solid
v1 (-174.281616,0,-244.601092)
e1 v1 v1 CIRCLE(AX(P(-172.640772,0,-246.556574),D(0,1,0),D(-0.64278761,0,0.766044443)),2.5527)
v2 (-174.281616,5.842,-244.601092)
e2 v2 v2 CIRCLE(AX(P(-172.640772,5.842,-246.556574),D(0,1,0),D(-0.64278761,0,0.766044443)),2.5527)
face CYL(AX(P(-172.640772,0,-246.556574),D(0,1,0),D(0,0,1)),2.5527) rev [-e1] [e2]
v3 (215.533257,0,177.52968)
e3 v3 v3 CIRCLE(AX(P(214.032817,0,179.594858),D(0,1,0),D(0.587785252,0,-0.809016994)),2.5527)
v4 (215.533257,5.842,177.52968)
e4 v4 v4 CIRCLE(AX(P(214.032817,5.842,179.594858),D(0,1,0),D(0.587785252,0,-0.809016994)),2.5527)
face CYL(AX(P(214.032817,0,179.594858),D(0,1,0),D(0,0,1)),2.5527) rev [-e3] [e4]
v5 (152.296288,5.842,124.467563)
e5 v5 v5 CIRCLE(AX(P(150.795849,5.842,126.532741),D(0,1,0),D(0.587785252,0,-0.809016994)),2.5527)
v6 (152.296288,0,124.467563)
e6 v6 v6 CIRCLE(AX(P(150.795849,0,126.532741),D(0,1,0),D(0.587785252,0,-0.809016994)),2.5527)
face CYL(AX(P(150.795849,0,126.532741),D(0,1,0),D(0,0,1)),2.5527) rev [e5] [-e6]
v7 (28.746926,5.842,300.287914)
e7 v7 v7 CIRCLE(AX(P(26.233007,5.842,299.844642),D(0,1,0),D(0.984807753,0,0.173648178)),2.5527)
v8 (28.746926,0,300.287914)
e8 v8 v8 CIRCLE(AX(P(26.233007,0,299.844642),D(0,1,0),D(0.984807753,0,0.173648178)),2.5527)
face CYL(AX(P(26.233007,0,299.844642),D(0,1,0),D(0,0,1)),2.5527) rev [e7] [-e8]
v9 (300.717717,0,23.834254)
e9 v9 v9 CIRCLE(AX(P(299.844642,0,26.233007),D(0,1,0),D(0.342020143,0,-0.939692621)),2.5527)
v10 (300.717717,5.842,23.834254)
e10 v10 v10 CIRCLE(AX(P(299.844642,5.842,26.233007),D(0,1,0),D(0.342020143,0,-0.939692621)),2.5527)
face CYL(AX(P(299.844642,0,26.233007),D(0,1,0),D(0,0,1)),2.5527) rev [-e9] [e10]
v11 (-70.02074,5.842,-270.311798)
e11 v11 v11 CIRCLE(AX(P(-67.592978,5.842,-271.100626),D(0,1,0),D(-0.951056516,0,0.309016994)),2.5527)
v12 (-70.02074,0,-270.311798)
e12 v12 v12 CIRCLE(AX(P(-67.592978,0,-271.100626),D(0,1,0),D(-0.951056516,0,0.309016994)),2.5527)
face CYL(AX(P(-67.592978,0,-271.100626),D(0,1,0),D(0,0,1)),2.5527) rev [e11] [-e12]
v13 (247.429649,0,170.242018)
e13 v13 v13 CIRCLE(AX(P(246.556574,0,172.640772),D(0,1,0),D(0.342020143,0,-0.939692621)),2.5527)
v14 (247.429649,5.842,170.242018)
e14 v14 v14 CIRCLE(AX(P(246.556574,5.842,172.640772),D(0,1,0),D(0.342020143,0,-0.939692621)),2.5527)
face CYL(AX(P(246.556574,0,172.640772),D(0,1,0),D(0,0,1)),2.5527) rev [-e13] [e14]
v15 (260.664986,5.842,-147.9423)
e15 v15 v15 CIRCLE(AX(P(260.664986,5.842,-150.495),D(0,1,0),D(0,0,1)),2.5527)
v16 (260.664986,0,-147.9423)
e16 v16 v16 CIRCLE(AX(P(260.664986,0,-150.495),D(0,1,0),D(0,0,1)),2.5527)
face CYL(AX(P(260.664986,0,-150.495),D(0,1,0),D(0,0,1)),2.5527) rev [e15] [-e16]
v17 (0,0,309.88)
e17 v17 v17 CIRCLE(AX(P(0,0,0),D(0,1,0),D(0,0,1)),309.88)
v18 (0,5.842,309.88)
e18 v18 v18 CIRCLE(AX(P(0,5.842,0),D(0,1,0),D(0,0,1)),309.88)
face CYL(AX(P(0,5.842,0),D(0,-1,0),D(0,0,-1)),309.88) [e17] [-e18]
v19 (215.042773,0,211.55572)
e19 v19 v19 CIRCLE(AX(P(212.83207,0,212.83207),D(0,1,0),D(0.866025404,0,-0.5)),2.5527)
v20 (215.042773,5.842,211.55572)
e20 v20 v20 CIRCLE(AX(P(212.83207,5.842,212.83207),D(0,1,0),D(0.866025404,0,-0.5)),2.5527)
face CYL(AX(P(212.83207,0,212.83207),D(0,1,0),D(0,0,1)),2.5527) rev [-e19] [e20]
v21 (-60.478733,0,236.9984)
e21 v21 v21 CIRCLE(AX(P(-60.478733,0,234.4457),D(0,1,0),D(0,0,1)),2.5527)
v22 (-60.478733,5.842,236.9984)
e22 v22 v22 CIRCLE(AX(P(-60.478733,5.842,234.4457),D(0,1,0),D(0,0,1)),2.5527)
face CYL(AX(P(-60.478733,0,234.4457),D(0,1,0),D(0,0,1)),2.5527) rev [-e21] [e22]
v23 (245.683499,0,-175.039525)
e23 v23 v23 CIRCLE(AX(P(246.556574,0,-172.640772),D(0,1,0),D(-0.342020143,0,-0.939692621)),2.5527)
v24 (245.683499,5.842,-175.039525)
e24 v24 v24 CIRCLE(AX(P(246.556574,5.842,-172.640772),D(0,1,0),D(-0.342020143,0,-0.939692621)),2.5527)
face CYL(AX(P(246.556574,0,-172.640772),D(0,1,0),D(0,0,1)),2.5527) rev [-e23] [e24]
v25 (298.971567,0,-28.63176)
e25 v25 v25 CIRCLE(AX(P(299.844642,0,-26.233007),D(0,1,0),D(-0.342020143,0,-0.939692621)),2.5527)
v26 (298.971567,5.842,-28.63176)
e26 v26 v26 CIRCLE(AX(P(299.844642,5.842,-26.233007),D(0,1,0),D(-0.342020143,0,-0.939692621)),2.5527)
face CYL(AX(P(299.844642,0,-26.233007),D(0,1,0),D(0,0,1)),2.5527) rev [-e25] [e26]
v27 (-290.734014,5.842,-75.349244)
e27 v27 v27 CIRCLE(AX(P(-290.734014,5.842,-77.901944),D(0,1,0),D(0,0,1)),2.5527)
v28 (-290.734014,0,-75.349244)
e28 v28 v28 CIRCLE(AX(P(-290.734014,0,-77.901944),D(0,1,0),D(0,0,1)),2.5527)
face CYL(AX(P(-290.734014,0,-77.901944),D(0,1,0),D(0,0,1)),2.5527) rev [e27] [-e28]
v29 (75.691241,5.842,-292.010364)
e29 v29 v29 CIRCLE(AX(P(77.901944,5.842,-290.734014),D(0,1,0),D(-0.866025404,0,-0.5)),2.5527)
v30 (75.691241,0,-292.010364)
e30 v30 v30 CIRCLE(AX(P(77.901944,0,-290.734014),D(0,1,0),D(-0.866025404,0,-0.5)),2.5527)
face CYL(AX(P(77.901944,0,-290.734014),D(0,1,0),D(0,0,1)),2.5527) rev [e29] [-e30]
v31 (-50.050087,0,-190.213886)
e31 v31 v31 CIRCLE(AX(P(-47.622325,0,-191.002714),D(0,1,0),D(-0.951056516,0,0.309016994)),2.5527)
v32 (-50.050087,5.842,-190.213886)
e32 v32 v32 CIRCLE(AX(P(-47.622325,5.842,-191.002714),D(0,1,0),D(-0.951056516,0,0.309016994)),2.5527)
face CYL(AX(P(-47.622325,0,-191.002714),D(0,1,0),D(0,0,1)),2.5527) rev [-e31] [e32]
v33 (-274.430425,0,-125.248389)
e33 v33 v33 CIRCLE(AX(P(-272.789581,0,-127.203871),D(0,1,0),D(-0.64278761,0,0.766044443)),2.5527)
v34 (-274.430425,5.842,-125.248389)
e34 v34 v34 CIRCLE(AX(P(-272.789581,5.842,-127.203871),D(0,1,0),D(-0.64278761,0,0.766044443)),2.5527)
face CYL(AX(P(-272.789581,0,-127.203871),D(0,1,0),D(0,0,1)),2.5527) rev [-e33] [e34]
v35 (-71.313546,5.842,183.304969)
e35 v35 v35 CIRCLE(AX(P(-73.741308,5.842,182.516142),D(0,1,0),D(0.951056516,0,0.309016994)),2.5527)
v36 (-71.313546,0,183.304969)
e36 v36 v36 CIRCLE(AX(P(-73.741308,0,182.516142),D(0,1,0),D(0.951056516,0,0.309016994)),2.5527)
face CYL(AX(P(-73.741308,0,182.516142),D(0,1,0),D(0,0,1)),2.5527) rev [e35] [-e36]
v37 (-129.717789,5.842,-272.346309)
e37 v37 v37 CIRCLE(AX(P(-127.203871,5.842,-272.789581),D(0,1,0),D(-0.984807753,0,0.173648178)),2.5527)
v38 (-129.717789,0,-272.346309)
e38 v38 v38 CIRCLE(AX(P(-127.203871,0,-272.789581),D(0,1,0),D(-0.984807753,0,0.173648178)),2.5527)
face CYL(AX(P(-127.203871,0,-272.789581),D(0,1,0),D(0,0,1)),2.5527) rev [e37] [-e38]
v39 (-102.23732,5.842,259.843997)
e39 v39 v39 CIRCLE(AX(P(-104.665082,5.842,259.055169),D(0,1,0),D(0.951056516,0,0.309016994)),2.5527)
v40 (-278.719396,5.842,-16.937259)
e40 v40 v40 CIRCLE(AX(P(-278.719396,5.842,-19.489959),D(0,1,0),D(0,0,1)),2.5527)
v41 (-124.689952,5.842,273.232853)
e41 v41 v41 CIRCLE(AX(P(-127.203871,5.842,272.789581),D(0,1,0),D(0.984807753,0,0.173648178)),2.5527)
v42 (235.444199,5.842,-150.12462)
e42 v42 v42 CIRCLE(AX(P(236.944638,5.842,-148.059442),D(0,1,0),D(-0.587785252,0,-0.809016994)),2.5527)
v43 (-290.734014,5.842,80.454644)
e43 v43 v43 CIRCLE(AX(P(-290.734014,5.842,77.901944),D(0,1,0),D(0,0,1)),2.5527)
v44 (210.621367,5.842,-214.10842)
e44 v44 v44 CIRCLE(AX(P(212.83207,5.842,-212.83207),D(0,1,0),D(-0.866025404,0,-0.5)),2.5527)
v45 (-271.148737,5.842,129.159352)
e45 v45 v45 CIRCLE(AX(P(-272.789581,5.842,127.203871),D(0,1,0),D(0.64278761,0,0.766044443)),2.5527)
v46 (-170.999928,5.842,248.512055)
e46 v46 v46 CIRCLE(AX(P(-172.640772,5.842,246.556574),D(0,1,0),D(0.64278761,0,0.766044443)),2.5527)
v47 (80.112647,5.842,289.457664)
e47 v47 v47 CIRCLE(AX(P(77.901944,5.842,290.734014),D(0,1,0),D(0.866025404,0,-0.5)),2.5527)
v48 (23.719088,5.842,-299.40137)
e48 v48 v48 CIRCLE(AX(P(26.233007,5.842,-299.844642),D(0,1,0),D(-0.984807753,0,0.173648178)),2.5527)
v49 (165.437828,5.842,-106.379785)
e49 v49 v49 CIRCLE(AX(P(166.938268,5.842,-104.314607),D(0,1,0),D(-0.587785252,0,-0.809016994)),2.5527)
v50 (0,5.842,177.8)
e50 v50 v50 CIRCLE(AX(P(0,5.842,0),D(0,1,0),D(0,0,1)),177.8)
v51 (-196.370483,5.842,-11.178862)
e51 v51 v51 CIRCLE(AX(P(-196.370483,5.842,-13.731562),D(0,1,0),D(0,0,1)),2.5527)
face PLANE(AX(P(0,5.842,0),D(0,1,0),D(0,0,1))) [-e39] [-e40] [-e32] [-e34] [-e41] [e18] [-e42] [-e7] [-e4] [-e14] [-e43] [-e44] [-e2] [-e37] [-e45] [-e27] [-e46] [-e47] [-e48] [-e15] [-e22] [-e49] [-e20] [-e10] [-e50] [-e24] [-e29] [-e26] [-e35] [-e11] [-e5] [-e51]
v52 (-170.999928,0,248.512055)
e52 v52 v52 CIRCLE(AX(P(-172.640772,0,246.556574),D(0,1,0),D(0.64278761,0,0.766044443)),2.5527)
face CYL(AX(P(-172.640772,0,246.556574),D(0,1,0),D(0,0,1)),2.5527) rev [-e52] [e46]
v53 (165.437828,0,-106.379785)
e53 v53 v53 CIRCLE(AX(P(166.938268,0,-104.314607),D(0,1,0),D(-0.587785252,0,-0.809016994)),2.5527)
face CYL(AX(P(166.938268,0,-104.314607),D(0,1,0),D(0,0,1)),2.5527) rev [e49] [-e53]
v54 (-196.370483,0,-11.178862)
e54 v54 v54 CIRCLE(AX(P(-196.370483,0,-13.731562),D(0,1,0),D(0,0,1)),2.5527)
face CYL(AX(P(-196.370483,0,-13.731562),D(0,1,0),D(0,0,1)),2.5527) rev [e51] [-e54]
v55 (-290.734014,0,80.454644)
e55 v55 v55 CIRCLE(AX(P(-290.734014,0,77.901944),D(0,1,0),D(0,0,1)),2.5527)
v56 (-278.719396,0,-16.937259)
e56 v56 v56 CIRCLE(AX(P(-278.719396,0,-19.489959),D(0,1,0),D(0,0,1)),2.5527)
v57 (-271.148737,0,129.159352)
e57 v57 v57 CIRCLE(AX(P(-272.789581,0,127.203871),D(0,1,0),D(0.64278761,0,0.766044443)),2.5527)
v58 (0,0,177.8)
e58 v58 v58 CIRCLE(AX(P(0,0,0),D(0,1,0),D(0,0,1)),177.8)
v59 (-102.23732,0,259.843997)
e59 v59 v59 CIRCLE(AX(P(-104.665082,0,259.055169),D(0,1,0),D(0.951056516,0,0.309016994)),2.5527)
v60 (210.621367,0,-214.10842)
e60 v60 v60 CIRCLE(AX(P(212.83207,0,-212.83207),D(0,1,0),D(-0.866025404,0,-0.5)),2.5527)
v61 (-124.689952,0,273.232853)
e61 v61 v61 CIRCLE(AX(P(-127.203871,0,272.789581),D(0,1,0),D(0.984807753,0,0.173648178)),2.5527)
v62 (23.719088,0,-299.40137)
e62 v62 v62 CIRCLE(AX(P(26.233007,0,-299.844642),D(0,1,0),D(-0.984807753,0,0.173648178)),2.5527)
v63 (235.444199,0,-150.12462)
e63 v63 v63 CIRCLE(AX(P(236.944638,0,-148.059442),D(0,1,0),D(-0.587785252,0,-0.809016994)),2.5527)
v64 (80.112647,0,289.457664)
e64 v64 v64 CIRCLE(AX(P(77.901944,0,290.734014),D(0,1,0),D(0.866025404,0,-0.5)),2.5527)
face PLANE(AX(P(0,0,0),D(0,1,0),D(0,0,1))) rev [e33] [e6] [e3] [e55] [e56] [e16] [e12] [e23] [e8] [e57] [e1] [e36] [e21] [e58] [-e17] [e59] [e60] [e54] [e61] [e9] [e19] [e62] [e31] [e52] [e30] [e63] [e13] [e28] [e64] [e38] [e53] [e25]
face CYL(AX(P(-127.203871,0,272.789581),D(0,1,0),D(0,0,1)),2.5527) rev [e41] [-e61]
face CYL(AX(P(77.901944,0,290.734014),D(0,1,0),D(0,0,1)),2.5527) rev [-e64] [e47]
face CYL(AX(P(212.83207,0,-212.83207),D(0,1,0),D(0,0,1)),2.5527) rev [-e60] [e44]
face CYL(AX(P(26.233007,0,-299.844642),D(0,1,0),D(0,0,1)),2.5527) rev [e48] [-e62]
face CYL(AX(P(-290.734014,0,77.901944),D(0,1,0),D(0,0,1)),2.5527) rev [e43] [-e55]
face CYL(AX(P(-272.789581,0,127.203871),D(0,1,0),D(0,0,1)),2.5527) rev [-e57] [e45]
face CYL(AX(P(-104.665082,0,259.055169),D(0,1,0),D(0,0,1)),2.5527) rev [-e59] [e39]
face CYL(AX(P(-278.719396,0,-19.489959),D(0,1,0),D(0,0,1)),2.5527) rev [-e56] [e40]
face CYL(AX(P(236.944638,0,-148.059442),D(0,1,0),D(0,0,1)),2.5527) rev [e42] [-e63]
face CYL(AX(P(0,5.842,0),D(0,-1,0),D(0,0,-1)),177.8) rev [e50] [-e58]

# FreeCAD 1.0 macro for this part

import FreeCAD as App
import Part
import Sketcher
from FreeCAD import Vector
Q = App.Units.Quantity

doc = App.newDocument("Part")
body = doc.addObject("PartDesign::Body", "Body")

# Sketch on XZ plane
sketch1 = body.newObject("Sketcher::SketchObject", "Sketch")
sketch1.AttachmentSupport = (doc.getObject("XZ_Plane"), [""])
sketch1.MapMode = "FlatFace"
sketch1.addGeometry(Part.Circle(Vector(0, 0, 0), Vector(0, 0, 1), 310), False)
sketch1.addGeometry(Part.Circle(Vector(0, 0, 0), Vector(0, 0, 1), 178), False)
sketch1.addConstraint(Sketcher.Constraint("Coincident", 0, 3, -1, 1))
sketch1.addConstraint(Sketcher.Constraint("Coincident", 1, 3, -1, 1))
sketch1.addConstraint(Sketcher.Constraint("Diameter", 1, Q("14 in")))
sketch1.addConstraint(Sketcher.Constraint("Diameter", 0, Q("24.4 in")))
pad1 = body.newObject("PartDesign::Pad", "Pad")
pad1.Profile = sketch1
pad1.Length = Q("0.23 in")
pad1.Reversed = True

# Sketch on XZ plane
sketch2 = body.newObject("Sketcher::SketchObject", "Sketch001")
sketch2.AttachmentSupport = (doc.getObject("XZ_Plane"), [""])
sketch2.MapMode = "FlatFace"
sketch2.AttachmentOffset = App.Placement(Vector(0, 0, -0.23 * 25.4), App.Rotation())
sketch2.addGeometry(Part.Circle(Vector(-290.7, 77.9, 0), Vector(0, 0, 1), 2.6), False)
sketch2.addGeometry(Part.Circle(Vector(-290.7, -77.9, 0), Vector(0, 0, 1), 2.6), False)
sketch2.addConstraint(Sketcher.Constraint("Equal", 0, 1))
sketch2.addConstraint(Sketcher.Constraint("Symmetric", 0, 3, 1, 3, -1))
sketch2.addConstraint(Sketcher.Constraint("Diameter", 0, Q("0.201 in")))
sketch2.addConstraint(Sketcher.Constraint("DistanceY", 1, 3, 0, 3, Q("155.803889 mm")))
sketch2.addConstraint(Sketcher.Constraint("DistanceX", 0, 3, -1, 1, Q("290.734014 mm")))
pocket1 = body.newObject("PartDesign::Pocket", "Pocket")
pocket1.Profile = sketch2
pocket1.Type = "ThroughAll"
pocket1.Reversed = True
doc.recompute()

polarpattern = body.newObject("PartDesign::PolarPattern", "PolarPattern")
polarpattern.Originals = [pocket1]
polarpattern.Axis = (doc.getObject("Y_Axis"), [""])
polarpattern.Angle = 360
polarpattern.Occurrences = 9
body.Tip = polarpattern

# Sketch on XZ plane
sketch3 = body.newObject("Sketcher::SketchObject", "Sketch002")
sketch3.AttachmentSupport = (doc.getObject("XZ_Plane"), [""])
sketch3.MapMode = "FlatFace"
sketch3.AttachmentOffset = App.Placement(Vector(0, 0, -0.23 * 25.4), App.Rotation())
sketch3.addGeometry(Part.Circle(Vector(-196.4, -13.7, 0), Vector(0, 0, 1), 2.6), False)
sketch3.addGeometry(Part.Circle(Vector(-278.7, -19.5, 0), Vector(0, 0, 1), 2.6), False)
sketch3.addConstraint(Sketcher.Constraint("Equal", 0, 1))
sketch3.addConstraint(Sketcher.Constraint("Diameter", 0, Q("0.201 in")))
sketch3.addConstraint(Sketcher.Constraint("DistanceY", 0, 3, -1, 1, Q("13.731562 mm")))
sketch3.addConstraint(Sketcher.Constraint("DistanceY", 1, 3, -1, 1, Q("19.489959 mm")))
sketch3.addConstraint(Sketcher.Constraint("DistanceX", 0, 3, -1, 1, Q("196.370483 mm")))
sketch3.addConstraint(Sketcher.Constraint("DistanceX", 1, 3, -1, 1, Q("278.719396 mm")))
pocket2 = body.newObject("PartDesign::Pocket", "Pocket001")
pocket2.Profile = sketch3
pocket2.Type = "ThroughAll"
pocket2.Reversed = True
doc.recompute()

polarpattern2 = body.newObject("PartDesign::PolarPattern", "PolarPattern001")
polarpattern2.Originals = [pocket2]
polarpattern2.Axis = (doc.getObject("Y_Axis"), [""])
polarpattern2.Angle = 360
polarpattern2.Occurrences = 5
body.Tip = polarpattern2

# Sketch on XZ plane
sketch4 = body.newObject("Sketcher::SketchObject", "Sketch003")
sketch4.AttachmentSupport = (doc.getObject("XZ_Plane"), [""])
sketch4.MapMode = "FlatFace"
sketch4.AttachmentOffset = App.Placement(Vector(0, 0, -0.23 * 25.4), App.Rotation())
sketch4.addGeometry(Part.Circle(Vector(260.7, -150.5, 0), Vector(0, 0, 1), 2.6), False)
sketch4.addConstraint(Sketcher.Constraint("Diameter", 0, Q("0.201 in")))
sketch4.addConstraint(Sketcher.Constraint("DistanceY", 0, 3, -1, 1, Q("5.925 in")))
sketch4.addConstraint(Sketcher.Constraint("DistanceX", -1, 1, 0, 3, Q("260.664986 mm")))
pocket3 = body.newObject("PartDesign::Pocket", "Pocket002")
pocket3.Profile = sketch4
pocket3.Type = "ThroughAll"
pocket3.Reversed = True

# Sketch on XZ plane
sketch5 = body.newObject("Sketcher::SketchObject", "Sketch004")
sketch5.AttachmentSupport = (doc.getObject("XZ_Plane"), [""])
sketch5.MapMode = "FlatFace"
sketch5.AttachmentOffset = App.Placement(Vector(0, 0, -0.23 * 25.4), App.Rotation())
sketch5.addGeometry(Part.Circle(Vector(-60.5, 234.4, 0), Vector(0, 0, 1), 2.6), False)
sketch5.addConstraint(Sketcher.Constraint("Diameter", 0, Q("0.201 in")))
sketch5.addConstraint(Sketcher.Constraint("DistanceY", -1, 1, 0, 3, Q("234.4457 mm")))
sketch5.addConstraint(Sketcher.Constraint("DistanceX", 0, 3, -1, 1, Q("60.478733 mm")))
pocket4 = body.newObject("PartDesign::Pocket", "Pocket003")
pocket4.Profile = sketch5
pocket4.Type = "ThroughAll"
pocket4.Reversed = True

doc.recompute()
